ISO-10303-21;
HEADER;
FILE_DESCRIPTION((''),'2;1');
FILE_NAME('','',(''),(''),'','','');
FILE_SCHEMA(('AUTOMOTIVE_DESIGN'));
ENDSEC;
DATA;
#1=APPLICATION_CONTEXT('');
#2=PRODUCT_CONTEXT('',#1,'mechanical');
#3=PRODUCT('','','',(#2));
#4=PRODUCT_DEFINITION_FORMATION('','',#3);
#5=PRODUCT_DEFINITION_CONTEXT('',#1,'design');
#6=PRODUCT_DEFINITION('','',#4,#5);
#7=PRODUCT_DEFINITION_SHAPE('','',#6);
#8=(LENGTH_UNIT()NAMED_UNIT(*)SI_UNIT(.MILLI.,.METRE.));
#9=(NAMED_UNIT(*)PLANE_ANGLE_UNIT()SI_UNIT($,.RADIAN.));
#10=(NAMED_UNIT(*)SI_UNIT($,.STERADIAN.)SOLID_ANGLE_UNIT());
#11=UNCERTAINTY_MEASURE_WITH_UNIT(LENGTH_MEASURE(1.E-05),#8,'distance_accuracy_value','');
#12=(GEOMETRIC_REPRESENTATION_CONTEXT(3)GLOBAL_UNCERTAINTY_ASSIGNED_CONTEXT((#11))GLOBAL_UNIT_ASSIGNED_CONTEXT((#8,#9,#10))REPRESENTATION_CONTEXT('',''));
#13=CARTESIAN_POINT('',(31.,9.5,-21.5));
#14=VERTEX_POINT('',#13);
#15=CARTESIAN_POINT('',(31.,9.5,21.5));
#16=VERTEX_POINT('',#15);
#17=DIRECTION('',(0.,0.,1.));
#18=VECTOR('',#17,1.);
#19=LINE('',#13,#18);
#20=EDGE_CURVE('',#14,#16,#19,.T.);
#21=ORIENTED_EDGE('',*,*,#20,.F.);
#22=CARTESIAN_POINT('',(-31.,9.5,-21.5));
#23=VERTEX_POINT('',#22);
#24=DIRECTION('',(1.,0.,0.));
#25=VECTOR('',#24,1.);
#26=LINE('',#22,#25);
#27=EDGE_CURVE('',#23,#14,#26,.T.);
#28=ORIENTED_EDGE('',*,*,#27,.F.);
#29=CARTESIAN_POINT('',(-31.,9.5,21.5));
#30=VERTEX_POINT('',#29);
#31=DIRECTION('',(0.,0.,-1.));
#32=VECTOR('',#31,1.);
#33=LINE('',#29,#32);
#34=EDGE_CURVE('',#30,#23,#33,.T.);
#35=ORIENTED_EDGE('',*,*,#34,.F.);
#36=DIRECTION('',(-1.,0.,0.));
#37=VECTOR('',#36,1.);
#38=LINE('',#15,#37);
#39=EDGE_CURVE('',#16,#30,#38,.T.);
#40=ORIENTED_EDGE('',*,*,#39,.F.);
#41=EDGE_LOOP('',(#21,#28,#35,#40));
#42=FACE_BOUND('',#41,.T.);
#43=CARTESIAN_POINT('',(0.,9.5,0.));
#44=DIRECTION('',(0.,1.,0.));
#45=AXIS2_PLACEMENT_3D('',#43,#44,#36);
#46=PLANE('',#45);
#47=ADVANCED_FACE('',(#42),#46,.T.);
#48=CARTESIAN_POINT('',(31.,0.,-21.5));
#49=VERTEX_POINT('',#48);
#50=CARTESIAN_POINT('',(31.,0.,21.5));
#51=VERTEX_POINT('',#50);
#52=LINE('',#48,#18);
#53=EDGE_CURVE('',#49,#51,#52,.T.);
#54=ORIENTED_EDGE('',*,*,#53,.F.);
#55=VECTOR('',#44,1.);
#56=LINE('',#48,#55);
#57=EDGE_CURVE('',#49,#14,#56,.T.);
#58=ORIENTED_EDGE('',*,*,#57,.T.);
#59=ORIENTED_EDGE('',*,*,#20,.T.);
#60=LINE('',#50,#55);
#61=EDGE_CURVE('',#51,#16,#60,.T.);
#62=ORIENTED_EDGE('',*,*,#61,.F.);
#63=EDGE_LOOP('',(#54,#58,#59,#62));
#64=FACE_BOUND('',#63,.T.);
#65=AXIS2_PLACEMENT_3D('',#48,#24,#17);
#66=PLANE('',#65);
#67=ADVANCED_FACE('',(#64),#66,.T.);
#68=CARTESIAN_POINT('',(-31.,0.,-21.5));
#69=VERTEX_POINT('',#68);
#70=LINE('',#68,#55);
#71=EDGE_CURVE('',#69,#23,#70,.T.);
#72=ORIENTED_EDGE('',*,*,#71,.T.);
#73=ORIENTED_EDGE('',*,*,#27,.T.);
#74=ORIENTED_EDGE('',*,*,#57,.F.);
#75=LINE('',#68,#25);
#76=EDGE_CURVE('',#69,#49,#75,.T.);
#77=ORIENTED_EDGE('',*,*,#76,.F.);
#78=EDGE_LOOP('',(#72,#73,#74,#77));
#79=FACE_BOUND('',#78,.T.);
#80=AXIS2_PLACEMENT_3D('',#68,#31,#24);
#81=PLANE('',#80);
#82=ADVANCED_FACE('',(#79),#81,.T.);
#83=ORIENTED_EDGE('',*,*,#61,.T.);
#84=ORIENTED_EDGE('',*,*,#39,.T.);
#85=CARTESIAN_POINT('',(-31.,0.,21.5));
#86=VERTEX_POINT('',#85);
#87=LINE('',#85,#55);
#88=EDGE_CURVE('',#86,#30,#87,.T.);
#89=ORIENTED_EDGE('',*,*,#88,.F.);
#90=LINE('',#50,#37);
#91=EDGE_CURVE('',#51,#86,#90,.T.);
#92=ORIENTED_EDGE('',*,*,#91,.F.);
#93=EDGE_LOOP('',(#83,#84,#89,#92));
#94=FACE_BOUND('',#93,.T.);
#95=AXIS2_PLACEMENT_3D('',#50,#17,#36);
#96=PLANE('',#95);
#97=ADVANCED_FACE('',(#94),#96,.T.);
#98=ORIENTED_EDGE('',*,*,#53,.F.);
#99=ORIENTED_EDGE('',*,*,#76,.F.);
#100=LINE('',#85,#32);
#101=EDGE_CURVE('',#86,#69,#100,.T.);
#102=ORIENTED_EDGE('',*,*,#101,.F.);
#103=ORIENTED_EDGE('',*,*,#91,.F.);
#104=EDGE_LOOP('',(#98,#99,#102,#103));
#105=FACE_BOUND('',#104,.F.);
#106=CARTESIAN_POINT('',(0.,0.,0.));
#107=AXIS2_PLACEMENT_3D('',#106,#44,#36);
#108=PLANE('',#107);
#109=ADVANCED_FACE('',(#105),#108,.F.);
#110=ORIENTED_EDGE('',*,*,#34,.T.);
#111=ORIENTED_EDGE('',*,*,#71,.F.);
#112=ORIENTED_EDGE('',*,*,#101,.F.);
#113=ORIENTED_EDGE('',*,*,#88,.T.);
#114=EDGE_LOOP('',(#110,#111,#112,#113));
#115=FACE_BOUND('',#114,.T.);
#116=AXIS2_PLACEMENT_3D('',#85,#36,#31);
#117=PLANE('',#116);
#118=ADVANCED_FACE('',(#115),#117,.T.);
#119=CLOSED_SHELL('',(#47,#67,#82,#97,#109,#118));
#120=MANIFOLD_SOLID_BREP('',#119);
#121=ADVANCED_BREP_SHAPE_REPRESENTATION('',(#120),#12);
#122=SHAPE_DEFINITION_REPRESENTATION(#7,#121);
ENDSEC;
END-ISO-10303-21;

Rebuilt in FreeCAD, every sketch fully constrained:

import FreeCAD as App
import Part
import Sketcher
Q = App.Units.Quantity


def add_polygon(sketch, points):
    """Adds a closed chain of lines whose ends are joined by coincident constraints."""
    first, n = sketch.GeometryCount, len(points)
    for a, b in zip(points, points[1:] + points[:1]):
        sketch.addGeometry(Part.LineSegment(App.Vector(*a, 0), App.Vector(*b, 0)), False)
    for i in range(n):
        sketch.addConstraint(Sketcher.Constraint("Coincident", first + i, 2, first + (i + 1) % n, 1))

doc = App.newDocument("Part")
body = doc.addObject("PartDesign::Body", "Body")

# Sketch on XZ plane
sketch1 = doc.addObject("Sketcher::SketchObject", "Sketch")
body.addObject(sketch1)
sketch1.AttachmentSupport = (doc.XZ_Plane, [""])
sketch1.MapMode = "FlatFace"
add_polygon(sketch1, [(-31, 22), (31, 22), (31, -22), (-31, -22)])  # lines 0-3
sketch1.addConstraint([
    Sketcher.Constraint("Horizontal", 0),
    Sketcher.Constraint("Vertical", 1),
    Sketcher.Constraint("Horizontal", 2),
    Sketcher.Constraint("Vertical", 3),
    Sketcher.Constraint("Symmetric", 0, 2, 2, 2, -1, 1),
    Sketcher.Constraint("DistanceX", 0, 1, 0, 2, Q("62 mm")),
    Sketcher.Constraint("DistanceY", 1, 2, 1, 1, Q("43 mm")),
])
pad1 = doc.addObject("PartDesign::Pad", "Pad")
body.addObject(pad1)
pad1.Profile = sketch1
pad1.Length = 9.5
pad1.Reversed = True

doc.recompute()
